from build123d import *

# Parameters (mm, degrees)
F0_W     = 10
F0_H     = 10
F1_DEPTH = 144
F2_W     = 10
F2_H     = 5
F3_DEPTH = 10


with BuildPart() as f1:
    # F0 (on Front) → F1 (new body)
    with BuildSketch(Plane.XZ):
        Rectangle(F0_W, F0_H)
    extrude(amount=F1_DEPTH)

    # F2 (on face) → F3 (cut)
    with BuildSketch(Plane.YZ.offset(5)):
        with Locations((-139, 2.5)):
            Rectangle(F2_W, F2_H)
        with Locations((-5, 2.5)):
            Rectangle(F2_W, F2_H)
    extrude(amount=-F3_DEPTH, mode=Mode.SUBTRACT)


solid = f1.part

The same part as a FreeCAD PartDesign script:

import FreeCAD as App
import Part
import Sketcher
from FreeCAD import Vector
Q = App.Units.Quantity


def add_polygon(sketch, points):
    """Adds a closed chain of lines whose ends are joined by coincident constraints."""
    first, n = sketch.GeometryCount, len(points)
    for a, b in zip(points, points[1:] + points[:1]):
        sketch.addGeometry(Part.LineSegment(App.Vector(*a, 0), App.Vector(*b, 0)), False)
    for i in range(n):
        sketch.addConstraint(Sketcher.Constraint("Coincident", first + i, 2, first + (i + 1) % n, 1))

doc = App.newDocument("Part")
body = doc.addObject("PartDesign::Body", "Body")

# Sketch on XZ plane
sketch1 = doc.addObject("Sketcher::SketchObject", "Sketch")
body.addObject(sketch1)
sketch1.AttachmentSupport = (doc.XZ_Plane, [""])
sketch1.MapMode = "FlatFace"
add_polygon(sketch1, [(-5, 5), (-5, -5), (5, -5), (5, 5)])  # lines 0-3
sketch1.addConstraint([
    Sketcher.Constraint("Vertical", 0),
    Sketcher.Constraint("Horizontal", 1),
    Sketcher.Constraint("Vertical", 2),
    Sketcher.Constraint("Horizontal", 3),
    Sketcher.Constraint("Symmetric", 0, 2, 2, 2, -1, 1),
    Sketcher.Constraint("Equal", 3, 0),
    Sketcher.Constraint("DistanceX", 1, 1, 1, 2, Q("10 mm")),
])
pad1 = doc.addObject("PartDesign::Pad", "Pad")
body.addObject(pad1)
pad1.Profile = sketch1
pad1.Length = 144

# Sketch on YZ plane
sketch2 = doc.addObject("Sketcher::SketchObject", "Sketch001")
body.addObject(sketch2)
sketch2.AttachmentSupport = (doc.YZ_Plane, [""])
sketch2.MapMode = "FlatFace"
sketch2.AttachmentOffset = App.Placement(Vector(0, 0, 5), App.Rotation())
add_polygon(sketch2, [(-144, 5), (-144, 0), (-134, 0), (-134, 5)])  # lines 0-3
add_polygon(sketch2, [(-10, 5), (-10, 0), (0, 0), (0, 5)])  # lines 4-7
sketch2.addConstraint([
    Sketcher.Constraint("Vertical", 0),
    Sketcher.Constraint("Horizontal", 1),
    Sketcher.Constraint("Vertical", 2),
    Sketcher.Constraint("Horizontal", 3),
    Sketcher.Constraint("Vertical", 4),
    Sketcher.Constraint("Horizontal", 5),
    Sketcher.Constraint("Vertical", 6),
    Sketcher.Constraint("Horizontal", 7),
    Sketcher.Constraint("Coincident", 5, 2, -1, 1),
    Sketcher.Constraint("PointOnObject", 0, 2, -1),
    Sketcher.Constraint("Horizontal", 3, 2, 6, 2),
    Sketcher.Constraint("Equal", 3, 5),
    Sketcher.Constraint("DistanceX", 1, 1, 1, 2, Q("10 mm")),
    Sketcher.Constraint("DistanceY", 0, 2, 0, 1, Q("5 mm")),
    Sketcher.Constraint("DistanceX", 0, 2, -1, 1, Q("144 mm")),
])
pocket1 = doc.addObject("PartDesign::Pocket", "Pocket")
body.addObject(pocket1)
pocket1.Profile = sketch2
pocket1.Length = 10

doc.recompute()
